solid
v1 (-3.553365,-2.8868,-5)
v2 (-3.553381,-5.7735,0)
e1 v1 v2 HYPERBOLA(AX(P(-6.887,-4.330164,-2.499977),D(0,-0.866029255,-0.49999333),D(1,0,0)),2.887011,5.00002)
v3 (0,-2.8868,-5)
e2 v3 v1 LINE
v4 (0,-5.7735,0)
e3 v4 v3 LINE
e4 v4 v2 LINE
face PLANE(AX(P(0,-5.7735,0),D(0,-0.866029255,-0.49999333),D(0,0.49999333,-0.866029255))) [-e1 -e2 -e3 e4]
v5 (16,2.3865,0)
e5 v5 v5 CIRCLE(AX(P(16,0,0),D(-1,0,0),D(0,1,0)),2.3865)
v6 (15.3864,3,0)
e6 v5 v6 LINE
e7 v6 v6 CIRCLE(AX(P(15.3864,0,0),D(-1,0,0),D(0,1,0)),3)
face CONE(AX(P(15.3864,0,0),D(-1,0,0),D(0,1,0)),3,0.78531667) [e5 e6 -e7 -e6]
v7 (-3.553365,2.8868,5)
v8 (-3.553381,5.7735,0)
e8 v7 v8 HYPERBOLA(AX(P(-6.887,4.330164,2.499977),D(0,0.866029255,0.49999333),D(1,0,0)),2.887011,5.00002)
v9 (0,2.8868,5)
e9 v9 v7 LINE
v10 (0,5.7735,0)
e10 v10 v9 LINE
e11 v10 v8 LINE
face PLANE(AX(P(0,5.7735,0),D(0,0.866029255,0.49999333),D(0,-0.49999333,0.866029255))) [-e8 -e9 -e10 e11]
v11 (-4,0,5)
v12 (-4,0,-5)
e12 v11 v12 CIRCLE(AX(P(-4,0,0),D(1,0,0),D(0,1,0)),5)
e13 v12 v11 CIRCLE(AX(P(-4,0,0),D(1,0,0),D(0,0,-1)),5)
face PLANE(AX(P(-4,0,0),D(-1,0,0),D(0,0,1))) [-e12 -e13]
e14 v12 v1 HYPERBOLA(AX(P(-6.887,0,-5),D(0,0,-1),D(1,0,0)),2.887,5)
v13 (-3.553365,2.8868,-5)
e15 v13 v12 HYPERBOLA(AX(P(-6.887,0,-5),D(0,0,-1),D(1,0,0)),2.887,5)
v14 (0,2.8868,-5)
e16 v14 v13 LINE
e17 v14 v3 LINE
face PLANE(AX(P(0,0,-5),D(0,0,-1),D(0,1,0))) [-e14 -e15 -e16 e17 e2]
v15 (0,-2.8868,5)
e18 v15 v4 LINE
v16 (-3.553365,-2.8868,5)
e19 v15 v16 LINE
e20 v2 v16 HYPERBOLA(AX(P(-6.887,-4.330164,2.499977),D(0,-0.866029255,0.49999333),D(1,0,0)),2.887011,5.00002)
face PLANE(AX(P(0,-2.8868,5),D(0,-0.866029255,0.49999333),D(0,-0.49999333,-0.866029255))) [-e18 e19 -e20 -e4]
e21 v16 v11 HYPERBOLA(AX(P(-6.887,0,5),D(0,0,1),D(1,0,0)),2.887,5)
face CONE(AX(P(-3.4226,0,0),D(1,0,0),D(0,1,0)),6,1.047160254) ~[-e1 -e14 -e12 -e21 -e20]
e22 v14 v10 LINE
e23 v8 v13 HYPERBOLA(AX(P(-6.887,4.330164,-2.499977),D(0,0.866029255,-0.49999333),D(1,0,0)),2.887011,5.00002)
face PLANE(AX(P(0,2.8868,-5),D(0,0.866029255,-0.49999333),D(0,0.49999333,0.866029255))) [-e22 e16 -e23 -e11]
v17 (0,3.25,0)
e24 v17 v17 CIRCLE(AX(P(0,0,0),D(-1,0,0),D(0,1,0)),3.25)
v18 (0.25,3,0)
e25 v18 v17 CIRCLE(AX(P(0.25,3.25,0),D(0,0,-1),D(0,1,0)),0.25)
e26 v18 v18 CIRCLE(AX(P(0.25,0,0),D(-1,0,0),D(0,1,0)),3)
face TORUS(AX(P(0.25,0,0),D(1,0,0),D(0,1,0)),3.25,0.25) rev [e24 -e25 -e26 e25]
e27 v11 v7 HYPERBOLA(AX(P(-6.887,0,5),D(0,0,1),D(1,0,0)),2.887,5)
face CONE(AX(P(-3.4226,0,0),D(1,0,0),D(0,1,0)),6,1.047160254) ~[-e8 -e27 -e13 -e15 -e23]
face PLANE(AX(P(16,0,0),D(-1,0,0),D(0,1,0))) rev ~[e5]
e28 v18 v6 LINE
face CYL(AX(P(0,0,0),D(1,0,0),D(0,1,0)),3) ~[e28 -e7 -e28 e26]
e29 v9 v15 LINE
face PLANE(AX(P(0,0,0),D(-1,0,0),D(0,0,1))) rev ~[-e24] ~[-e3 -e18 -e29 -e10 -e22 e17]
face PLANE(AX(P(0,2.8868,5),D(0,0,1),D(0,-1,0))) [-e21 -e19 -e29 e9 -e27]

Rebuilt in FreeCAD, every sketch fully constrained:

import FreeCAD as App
import Part
import Sketcher
Q = App.Units.Quantity


def edges_at(feature, points):
    """Names of the edges that pass closest to the given points."""
    edges = feature.Shape.Edges
    near = lambda p: min(range(len(edges)), key=lambda i: edges[i].distToShape(Part.Vertex(*p))[0])
    return sorted({f"Edge{near(p) + 1}" for p in points})


def add_polygon(sketch, points):
    """Adds a closed chain of lines whose ends are joined by coincident constraints."""
    first, n = sketch.GeometryCount, len(points)
    for a, b in zip(points, points[1:] + points[:1]):
        sketch.addGeometry(Part.LineSegment(App.Vector(*a, 0), App.Vector(*b, 0)), False)
    for i in range(n):
        sketch.addConstraint(Sketcher.Constraint("Coincident", first + i, 2, first + (i + 1) % n, 1))

doc = App.newDocument("Part")
body = doc.addObject("PartDesign::Body", "Body")

# Sketch on XY plane
sketch1 = body.newObject("Sketcher::SketchObject", "Sketch")
sketch1.AttachmentSupport = (doc.getObject("XY_Plane"), [""])
sketch1.MapMode = "FlatFace"
add_polygon(sketch1, [(16, 3), (0, 3), (0, 0), (16, 0)])  # lines 0-3
sketch1.addConstraint([
    Sketcher.Constraint("Horizontal", 0),
    Sketcher.Constraint("Vertical", 1),
    Sketcher.Constraint("Horizontal", 2),
    Sketcher.Constraint("Vertical", 3),
    Sketcher.Constraint("Coincident", 1, 2, -1, 1),
    Sketcher.Constraint("DistanceX", 0, 2, 0, 1, 16.0),
    Sketcher.Constraint("DistanceY", 1, 2, 1, 1, 3.0),
])
revolution = body.newObject("PartDesign::Revolution", "Revolution")
revolution.Profile = sketch1
revolution.ReferenceAxis = (sketch1, ["H_Axis"])
revolution.Angle = 360

# Sketch on YZ plane
sketch2 = body.newObject("Sketcher::SketchObject", "Sketch001")
sketch2.AttachmentSupport = (doc.getObject("YZ_Plane"), [""])
sketch2.MapMode = "FlatFace"
add_polygon(sketch2, [(2.8868, -5), (-2.8868, -5), (-5.7735, 0), (-2.8868, 5), (2.8868, 5), (5.7735, 0)])  # lines 0-5
sketch2.addConstraint([
    Sketcher.Constraint("Horizontal", 0),
    Sketcher.Constraint("Horizontal", 3),
    Sketcher.Constraint("Symmetric", 0, 2, 3, 2, -1, 1),
    Sketcher.Constraint("Symmetric", 1, 2, 4, 2, -1, 1),
    Sketcher.Constraint("PointOnObject", 1, 2, -1),
    Sketcher.Constraint("Parallel", 2, 5),
    Sketcher.Constraint("Vertical", 0, 2, 2, 2),
    Sketcher.Constraint("DistanceY", 0, 2, 2, 2, 10.0),
    Sketcher.Constraint("Angle", 1, Q("119.9996 deg")),
    Sketcher.Constraint("DistanceX", 0, 2, 0, 1, 5.7736),
])
pad1 = body.newObject("PartDesign::Pad", "Pad")
pad1.Profile = sketch2
pad1.Length = 4
pad1.Reversed = True

# Sketch on XY plane
sketch3 = body.newObject("Sketcher::SketchObject", "Sketch002")
sketch3.AttachmentSupport = (doc.getObject("XY_Plane"), [""])
sketch3.MapMode = "FlatFace"
add_polygon(sketch3, [(-4, 5), (-3.4226, 6), (-4, 6)])  # lines 0-2
sketch3.addConstraint([
    Sketcher.Constraint("Horizontal", 1),
    Sketcher.Constraint("Vertical", 2),
    Sketcher.Constraint("DistanceX", 1, 2, -1, 1, 4.0),
    Sketcher.Constraint("DistanceY", 2, 2, 2, 1, 1.0),
    Sketcher.Constraint("DistanceY", -1, 1, 0, 2, 6.0),
    Sketcher.Constraint("DistanceX", 1, 2, 1, 1, 0.5774),
])
groove = body.newObject("PartDesign::Groove", "Groove")
groove.Profile = sketch3
groove.ReferenceAxis = (sketch3, ["H_Axis"])
groove.Angle = 360
doc.recompute()

chamfer = body.newObject("PartDesign::Chamfer", "Chamfer")
chamfer.Base = (groove, edges_at(groove, [(16, -3, 0)]))
chamfer.ChamferType = "Two distances"
chamfer.Size = 0.6135
chamfer.Size2 = 0.6136
doc.recompute()

fillet = body.newObject("PartDesign::Fillet", "Fillet")
fillet.Base = (chamfer, edges_at(chamfer, [(0, -3, 0)]))
fillet.Radius = 0.25

doc.recompute()
